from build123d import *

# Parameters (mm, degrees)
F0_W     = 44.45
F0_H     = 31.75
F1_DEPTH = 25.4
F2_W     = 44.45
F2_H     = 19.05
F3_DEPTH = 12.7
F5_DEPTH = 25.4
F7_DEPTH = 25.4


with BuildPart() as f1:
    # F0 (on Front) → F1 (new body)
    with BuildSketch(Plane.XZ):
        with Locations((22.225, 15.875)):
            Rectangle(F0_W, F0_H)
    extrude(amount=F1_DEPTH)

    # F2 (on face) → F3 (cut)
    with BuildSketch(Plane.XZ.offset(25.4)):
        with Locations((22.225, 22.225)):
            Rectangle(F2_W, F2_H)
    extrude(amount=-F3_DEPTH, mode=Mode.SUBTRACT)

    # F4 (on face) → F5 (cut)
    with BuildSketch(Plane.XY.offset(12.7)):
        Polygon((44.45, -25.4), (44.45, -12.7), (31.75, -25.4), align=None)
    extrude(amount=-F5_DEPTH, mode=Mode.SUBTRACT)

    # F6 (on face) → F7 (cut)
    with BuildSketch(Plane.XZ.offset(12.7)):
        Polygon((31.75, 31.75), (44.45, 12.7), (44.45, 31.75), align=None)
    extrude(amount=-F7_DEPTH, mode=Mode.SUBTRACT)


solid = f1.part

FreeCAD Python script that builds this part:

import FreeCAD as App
import Part
import Sketcher
Q = App.Units.Quantity


def add_polygon(sketch, points):
    """Adds a closed chain of lines whose ends are joined by coincident constraints."""
    first, n = sketch.GeometryCount, len(points)
    for a, b in zip(points, points[1:] + points[:1]):
        sketch.addGeometry(Part.LineSegment(App.Vector(*a, 0), App.Vector(*b, 0)), False)
    for i in range(n):
        sketch.addConstraint(Sketcher.Constraint("Coincident", first + i, 2, first + (i + 1) % n, 1))

doc = App.newDocument("Part")
body = doc.addObject("PartDesign::Body", "Body")

# Sketch on XZ plane
sketch1 = body.newObject("Sketcher::SketchObject", "Sketch")
sketch1.AttachmentSupport = (doc.getObject("XZ_Plane"), [""])
sketch1.MapMode = "FlatFace"
add_polygon(sketch1, [(0, 32), (0, 0), (44, 0), (44, 32)])  # lines 0-3
sketch1.addConstraint([
    Sketcher.Constraint("Vertical", 0),
    Sketcher.Constraint("Horizontal", 1),
    Sketcher.Constraint("Vertical", 2),
    Sketcher.Constraint("Horizontal", 3),
    Sketcher.Constraint("Coincident", 0, 2, -1, 1),
    Sketcher.Constraint("DistanceX", 1, 1, 1, 2, Q("1.75 in")),
    Sketcher.Constraint("DistanceY", 0, 2, 0, 1, Q("1.25 in")),
])
pad1 = body.newObject("PartDesign::Pad", "Pad")
pad1.Profile = sketch1
pad1.Length = Q("1 in")

# Sketch on XZ plane
sketch2 = body.newObject("Sketcher::SketchObject", "Sketch001")
sketch2.AttachmentSupport = (doc.getObject("XZ_Plane"), [""])
sketch2.MapMode = "FlatFace"
sketch2.AttachmentOffset = App.Placement(App.Vector(0, 0, 1 * 25.4), App.Rotation())
add_polygon(sketch2, [(0, 32), (0, 13), (44, 13), (44, 32)])  # lines 0-3
sketch2.addConstraint([
    Sketcher.Constraint("Vertical", 0),
    Sketcher.Constraint("Horizontal", 1),
    Sketcher.Constraint("Vertical", 2),
    Sketcher.Constraint("Horizontal", 3),
    Sketcher.Constraint("PointOnObject", 0, 2, -2),
    Sketcher.Constraint("DistanceX", 1, 1, 1, 2, Q("1.75 in")),
    Sketcher.Constraint("DistanceY", 0, 2, 0, 1, Q("0.75 in")),
    Sketcher.Constraint("DistanceY", -1, 1, 0, 2, Q("0.5 in")),
])
pocket1 = body.newObject("PartDesign::Pocket", "Pocket")
pocket1.Profile = sketch2
pocket1.Length = Q("0.5 in")

# Sketch on XY plane
sketch3 = body.newObject("Sketcher::SketchObject", "Sketch002")
sketch3.AttachmentSupport = (doc.getObject("XY_Plane"), [""])
sketch3.MapMode = "FlatFace"
sketch3.AttachmentOffset = App.Placement(App.Vector(0, 0, 0.5 * 25.4), App.Rotation())
add_polygon(sketch3, [(44, -25), (44, -13), (32, -25)])  # lines 0-2
sketch3.addConstraint([
    Sketcher.Constraint("Vertical", 0),
    Sketcher.Constraint("Horizontal", 2),
    Sketcher.Constraint("Equal", 2, 0),
    Sketcher.Constraint("DistanceX", 2, 1, 2, 2, Q("0.5 in")),
    Sketcher.Constraint("DistanceY", 1, 2, -1, 1, Q("1 in")),
    Sketcher.Constraint("DistanceX", -1, 1, 0, 2, Q("1.75 in")),
])
pocket2 = body.newObject("PartDesign::Pocket", "Pocket001")
pocket2.Profile = sketch3
pocket2.Length = Q("1 in")

# Sketch on XZ plane
sketch4 = body.newObject("Sketcher::SketchObject", "Sketch003")
sketch4.AttachmentSupport = (doc.getObject("XZ_Plane"), [""])
sketch4.MapMode = "FlatFace"
sketch4.AttachmentOffset = App.Placement(App.Vector(0, 0, 0.5 * 25.4), App.Rotation())
add_polygon(sketch4, [(32, 32), (44, 13), (44, 32)])  # lines 0-2
sketch4.addConstraint([
    Sketcher.Constraint("Vertical", 1),
    Sketcher.Constraint("Horizontal", 2),
    Sketcher.Constraint("DistanceX", 2, 2, 2, 1, Q("0.5 in")),
    Sketcher.Constraint("DistanceY", 1, 1, 1, 2, Q("0.75 in")),
    Sketcher.Constraint("DistanceY", -1, 1, 0, 2, Q("0.5 in")),
    Sketcher.Constraint("DistanceX", -1, 1, 0, 2, Q("1.75 in")),
])
pocket3 = body.newObject("PartDesign::Pocket", "Pocket002")
pocket3.Profile = sketch4
pocket3.Length = Q("1 in")

doc.recompute()
